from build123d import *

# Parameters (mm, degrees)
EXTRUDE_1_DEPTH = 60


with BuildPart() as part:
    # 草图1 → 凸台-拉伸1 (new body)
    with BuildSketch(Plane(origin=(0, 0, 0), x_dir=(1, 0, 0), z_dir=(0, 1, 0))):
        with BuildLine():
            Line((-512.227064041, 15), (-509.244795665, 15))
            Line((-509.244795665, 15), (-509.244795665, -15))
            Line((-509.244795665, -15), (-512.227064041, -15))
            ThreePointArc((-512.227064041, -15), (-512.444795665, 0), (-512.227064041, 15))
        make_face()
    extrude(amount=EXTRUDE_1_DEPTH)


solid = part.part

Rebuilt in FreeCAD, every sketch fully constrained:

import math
import FreeCAD as App
import Part
import Sketcher

doc = App.newDocument("Part")
body = doc.addObject("PartDesign::Body", "Body")

# Sketch on XZ plane
sketch1 = body.newObject("Sketcher::SketchObject", "Sketch")
sketch1.AttachmentSupport = (doc.getObject("XZ_Plane"), [""])
sketch1.MapMode = "FlatFace"
sketch1.addGeometry([
    Part.LineSegment(App.Vector(-509.2, -15, 0), App.Vector(-512.2, -15, 0)),
    Part.ArcOfCircle(Part.Circle(App.Vector(4.4, 0, 0), App.Vector(0, 0, 1), 516.8), math.radians(178.34), math.radians(181.66)),
    Part.LineSegment(App.Vector(-512.2, 15, 0), App.Vector(-509.2, 15, 0)),
    Part.LineSegment(App.Vector(-509.2, 15, 0), App.Vector(-509.2, -15, 0)),
], False)
sketch1.addConstraint([
    Sketcher.Constraint("Coincident", 0, 2, 1, 2),
    Sketcher.Constraint("Coincident", 1, 1, 2, 1),
    Sketcher.Constraint("Coincident", 2, 2, 3, 1),
    Sketcher.Constraint("Coincident", 3, 2, 0, 1),
    Sketcher.Constraint("Horizontal", 0),
    Sketcher.Constraint("Horizontal", 2),
    Sketcher.Constraint("Vertical", 3),
    Sketcher.Constraint("PointOnObject", 1, 3, -1),
    Sketcher.Constraint("Equal", 0, 2),
    Sketcher.Constraint("Radius", 1, 516.800001),
    Sketcher.Constraint("DistanceY", 3, 2, 3, 1, 30.0),
    Sketcher.Constraint("DistanceX", 2, 2, 1, 3, 513.600001),
    Sketcher.Constraint("DistanceX", -1, 1, 1, 3, 4.355205),
])
pad1 = body.newObject("PartDesign::Pad", "Pad")
pad1.Profile = sketch1
pad1.Length = 60
pad1.Reversed = True

doc.recompute()
